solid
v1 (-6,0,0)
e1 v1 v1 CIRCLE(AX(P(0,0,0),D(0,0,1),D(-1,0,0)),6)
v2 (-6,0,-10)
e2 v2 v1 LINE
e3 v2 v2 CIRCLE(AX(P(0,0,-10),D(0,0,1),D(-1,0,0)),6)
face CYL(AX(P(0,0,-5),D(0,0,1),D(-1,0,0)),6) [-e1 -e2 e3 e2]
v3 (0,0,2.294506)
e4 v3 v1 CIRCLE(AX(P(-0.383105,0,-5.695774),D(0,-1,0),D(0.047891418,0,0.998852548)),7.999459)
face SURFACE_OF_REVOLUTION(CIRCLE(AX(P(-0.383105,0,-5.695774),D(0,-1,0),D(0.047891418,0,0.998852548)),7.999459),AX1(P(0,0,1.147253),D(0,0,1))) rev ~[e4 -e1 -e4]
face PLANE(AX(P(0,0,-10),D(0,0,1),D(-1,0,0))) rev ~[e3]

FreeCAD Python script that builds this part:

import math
import FreeCAD as App
import Part
import Sketcher

V = App.Vector


def add_polygon(sketch, points):
    """Adds a closed chain of lines whose ends are joined by coincident constraints."""
    first, n = sketch.GeometryCount, len(points)
    for a, b in zip(points, points[1:] + points[:1]):
        sketch.addGeometry(Part.LineSegment(App.Vector(*a, 0), App.Vector(*b, 0)), False)
    for i in range(n):
        sketch.addConstraint(Sketcher.Constraint("Coincident", first + i, 2, first + (i + 1) % n, 1))

doc = App.newDocument("Part")
body = doc.addObject("PartDesign::Body", "Body")

# Sketch on XZ plane
sketch1 = body.newObject("Sketcher::SketchObject", "Sketch")
sketch1.AttachmentSupport = (doc.getObject("XZ_Plane"), [""])
sketch1.MapMode = "FlatFace"
sketch1.addGeometry([
    Part.LineSegment(V(-6, 0, 0), V(0, 0, 0)),
    Part.LineSegment(V(0, 0, 0), V(0, 2.294506, 0)),
    Part.ArcOfCircle(Part.Circle(V(-0.383105, -5.695774, 0), V(0, 0, 1), 7.999459), math.radians(87.254974), math.radians(134.6005)),
], False)
sketch1.addConstraint([
    Sketcher.Constraint("Coincident", 0, 2, 1, 1),
    Sketcher.Constraint("Coincident", 1, 2, 2, 1),
    Sketcher.Constraint("Coincident", 2, 2, 0, 1),
    Sketcher.Constraint("Horizontal", 0),
    Sketcher.Constraint("Vertical", 1),
    Sketcher.Constraint("Coincident", 0, 2, -1, 1),
    Sketcher.Constraint("DistanceX", 0, 1, 0, 2, 6.0),
    Sketcher.Constraint("Radius", 2, 7.999459),
    Sketcher.Constraint("DistanceY", 1, 1, 1, 2, 2.294506),
])
revolution = body.newObject("PartDesign::Revolution", "Revolution")
revolution.Profile = sketch1
revolution.ReferenceAxis = (sketch1, ["V_Axis"])
revolution.Angle = 360

# Sketch on XZ plane
sketch2 = body.newObject("Sketcher::SketchObject", "Sketch001")
sketch2.AttachmentSupport = (doc.getObject("XZ_Plane"), [""])
sketch2.MapMode = "FlatFace"
add_polygon(sketch2, [(-6, 0), (-6, -10), (0, -10), (0, 0)])  # lines 0-3
sketch2.addConstraint([
    Sketcher.Constraint("Vertical", 0),
    Sketcher.Constraint("Horizontal", 1),
    Sketcher.Constraint("Vertical", 2),
    Sketcher.Constraint("Horizontal", 3),
    Sketcher.Constraint("Coincident", 2, 2, -1, 1),
    Sketcher.Constraint("DistanceX", 1, 1, 1, 2, 6.0),
    Sketcher.Constraint("DistanceY", 0, 2, 0, 1, 10.0),
])
revolution2 = body.newObject("PartDesign::Revolution", "Revolution001")
revolution2.Profile = sketch2
revolution2.ReferenceAxis = (sketch2, ["V_Axis"])
revolution2.Angle = 360

doc.recompute()
